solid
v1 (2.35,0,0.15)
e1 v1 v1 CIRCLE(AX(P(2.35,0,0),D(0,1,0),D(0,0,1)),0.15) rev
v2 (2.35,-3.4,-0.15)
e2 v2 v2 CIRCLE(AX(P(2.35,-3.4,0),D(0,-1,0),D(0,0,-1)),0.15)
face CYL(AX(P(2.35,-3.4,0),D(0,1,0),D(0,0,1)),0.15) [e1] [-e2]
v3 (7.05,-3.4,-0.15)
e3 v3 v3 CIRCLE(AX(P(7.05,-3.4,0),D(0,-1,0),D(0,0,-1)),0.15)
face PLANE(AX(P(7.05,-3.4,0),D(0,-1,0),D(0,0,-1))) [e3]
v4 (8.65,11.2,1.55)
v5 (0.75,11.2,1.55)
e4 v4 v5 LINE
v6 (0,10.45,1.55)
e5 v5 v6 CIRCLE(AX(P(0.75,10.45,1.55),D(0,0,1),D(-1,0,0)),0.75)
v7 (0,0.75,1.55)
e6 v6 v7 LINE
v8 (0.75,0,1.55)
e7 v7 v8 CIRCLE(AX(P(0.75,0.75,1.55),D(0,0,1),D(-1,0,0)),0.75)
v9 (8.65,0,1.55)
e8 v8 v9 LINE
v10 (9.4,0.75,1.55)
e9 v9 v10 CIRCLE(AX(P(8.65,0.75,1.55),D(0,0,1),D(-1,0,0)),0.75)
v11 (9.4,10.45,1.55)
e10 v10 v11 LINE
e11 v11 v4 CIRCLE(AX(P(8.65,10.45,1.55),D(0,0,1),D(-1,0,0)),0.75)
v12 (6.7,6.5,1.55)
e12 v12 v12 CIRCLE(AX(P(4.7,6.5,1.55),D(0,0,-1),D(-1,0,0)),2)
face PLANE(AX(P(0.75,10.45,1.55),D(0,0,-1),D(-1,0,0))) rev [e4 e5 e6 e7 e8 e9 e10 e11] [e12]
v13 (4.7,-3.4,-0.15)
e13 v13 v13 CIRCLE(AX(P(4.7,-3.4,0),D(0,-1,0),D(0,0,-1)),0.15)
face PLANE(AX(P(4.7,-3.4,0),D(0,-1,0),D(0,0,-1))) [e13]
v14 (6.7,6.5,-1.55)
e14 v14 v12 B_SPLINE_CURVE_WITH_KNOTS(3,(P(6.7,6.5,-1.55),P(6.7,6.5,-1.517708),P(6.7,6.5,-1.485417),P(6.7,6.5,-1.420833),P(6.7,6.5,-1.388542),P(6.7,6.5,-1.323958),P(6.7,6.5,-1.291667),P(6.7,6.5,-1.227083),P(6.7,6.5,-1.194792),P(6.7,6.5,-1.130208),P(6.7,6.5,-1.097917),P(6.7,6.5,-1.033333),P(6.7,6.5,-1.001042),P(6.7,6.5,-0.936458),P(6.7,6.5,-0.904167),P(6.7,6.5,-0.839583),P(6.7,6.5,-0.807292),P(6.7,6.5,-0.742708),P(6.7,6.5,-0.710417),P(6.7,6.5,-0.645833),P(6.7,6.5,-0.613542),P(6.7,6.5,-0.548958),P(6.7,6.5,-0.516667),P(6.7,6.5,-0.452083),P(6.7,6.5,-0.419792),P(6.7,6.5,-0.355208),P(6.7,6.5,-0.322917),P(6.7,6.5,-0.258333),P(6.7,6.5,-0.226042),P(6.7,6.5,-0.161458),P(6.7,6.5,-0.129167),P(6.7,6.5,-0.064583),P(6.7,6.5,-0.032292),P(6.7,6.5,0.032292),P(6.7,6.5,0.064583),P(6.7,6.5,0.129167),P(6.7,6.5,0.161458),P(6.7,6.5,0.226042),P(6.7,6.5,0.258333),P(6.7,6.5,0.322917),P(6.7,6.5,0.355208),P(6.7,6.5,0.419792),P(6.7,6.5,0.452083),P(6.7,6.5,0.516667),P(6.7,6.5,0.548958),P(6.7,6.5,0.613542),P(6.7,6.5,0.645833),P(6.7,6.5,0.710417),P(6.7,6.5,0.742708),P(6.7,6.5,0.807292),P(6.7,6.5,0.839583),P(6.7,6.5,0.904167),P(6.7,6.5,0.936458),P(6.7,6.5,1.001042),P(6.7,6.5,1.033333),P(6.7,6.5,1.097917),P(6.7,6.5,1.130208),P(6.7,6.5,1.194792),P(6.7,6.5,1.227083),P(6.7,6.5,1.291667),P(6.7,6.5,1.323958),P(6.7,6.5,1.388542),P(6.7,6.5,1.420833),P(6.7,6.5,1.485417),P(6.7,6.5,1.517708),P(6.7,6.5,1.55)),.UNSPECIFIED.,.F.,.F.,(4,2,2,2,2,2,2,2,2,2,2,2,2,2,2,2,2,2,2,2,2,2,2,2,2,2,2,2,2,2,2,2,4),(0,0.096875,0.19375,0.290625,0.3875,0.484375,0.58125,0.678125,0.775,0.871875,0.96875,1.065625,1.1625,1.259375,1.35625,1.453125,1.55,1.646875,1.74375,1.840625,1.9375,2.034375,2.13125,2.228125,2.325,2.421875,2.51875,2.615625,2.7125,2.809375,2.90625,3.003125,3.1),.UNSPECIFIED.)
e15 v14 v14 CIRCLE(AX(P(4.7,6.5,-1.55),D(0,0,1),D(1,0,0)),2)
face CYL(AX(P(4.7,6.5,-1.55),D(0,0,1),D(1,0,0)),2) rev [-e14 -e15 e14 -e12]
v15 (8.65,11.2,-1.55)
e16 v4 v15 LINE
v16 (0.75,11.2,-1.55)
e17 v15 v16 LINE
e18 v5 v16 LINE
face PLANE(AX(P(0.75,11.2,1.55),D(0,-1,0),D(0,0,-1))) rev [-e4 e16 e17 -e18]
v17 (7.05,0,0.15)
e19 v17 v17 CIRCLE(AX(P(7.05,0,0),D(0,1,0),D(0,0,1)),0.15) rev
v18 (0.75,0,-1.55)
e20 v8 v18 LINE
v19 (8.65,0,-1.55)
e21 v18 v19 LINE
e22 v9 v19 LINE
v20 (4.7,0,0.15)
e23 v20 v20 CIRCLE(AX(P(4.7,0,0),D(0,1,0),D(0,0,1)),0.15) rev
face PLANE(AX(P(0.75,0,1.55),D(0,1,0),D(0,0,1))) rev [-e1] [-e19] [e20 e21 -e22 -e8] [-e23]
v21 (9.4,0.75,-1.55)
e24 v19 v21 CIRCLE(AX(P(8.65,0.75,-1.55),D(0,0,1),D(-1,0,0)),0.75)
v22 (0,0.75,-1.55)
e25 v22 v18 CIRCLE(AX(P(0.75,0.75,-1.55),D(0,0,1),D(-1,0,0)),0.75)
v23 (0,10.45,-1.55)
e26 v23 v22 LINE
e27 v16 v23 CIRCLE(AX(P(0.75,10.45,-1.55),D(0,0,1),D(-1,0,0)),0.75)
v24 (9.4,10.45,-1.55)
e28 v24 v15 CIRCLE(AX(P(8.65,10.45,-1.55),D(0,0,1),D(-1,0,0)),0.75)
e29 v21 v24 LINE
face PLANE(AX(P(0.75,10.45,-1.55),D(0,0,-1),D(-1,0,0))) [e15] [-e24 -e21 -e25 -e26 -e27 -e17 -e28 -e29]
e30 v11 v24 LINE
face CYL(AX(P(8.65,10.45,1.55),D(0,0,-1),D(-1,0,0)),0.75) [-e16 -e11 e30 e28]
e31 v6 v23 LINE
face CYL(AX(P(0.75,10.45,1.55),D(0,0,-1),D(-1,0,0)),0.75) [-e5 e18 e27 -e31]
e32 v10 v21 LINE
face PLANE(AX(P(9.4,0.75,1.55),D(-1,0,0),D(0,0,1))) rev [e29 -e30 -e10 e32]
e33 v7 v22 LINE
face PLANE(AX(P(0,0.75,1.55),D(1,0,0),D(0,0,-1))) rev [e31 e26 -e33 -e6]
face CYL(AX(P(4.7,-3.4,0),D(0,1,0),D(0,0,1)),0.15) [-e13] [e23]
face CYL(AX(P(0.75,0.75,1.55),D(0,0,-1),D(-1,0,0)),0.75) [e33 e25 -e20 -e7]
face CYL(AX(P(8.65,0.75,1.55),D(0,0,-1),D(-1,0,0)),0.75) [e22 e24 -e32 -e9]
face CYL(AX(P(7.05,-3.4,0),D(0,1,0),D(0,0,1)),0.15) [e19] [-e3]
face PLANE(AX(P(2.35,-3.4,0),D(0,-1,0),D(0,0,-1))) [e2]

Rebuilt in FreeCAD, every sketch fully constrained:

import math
import FreeCAD as App
import Part
import Sketcher

doc = App.newDocument("Part")
body = doc.addObject("PartDesign::Body", "Body")

# Sketch on XY plane
sketch1 = body.newObject("Sketcher::SketchObject", "Sketch")
sketch1.AttachmentSupport = (doc.getObject("XY_Plane"), [""])
sketch1.MapMode = "FlatFace"
sketch1.addGeometry(Part.LineSegment(App.Vector(0.8, 0, 0), App.Vector(8.7, 0, 0)), False)
sketch1.addGeometry(Part.ArcOfCircle(Part.Circle(App.Vector(8.7, 0.8, 0), App.Vector(0, 0, 1), 0.8), math.radians(-90), math.radians(0)), False)
sketch1.addGeometry(Part.LineSegment(App.Vector(9.4, 0.8, 0), App.Vector(9.4, 10.4, 0)), False)
sketch1.addGeometry(Part.ArcOfCircle(Part.Circle(App.Vector(8.7, 10.4, 0), App.Vector(0, 0, 1), 0.8), math.radians(0), math.radians(90)), False)
sketch1.addGeometry(Part.LineSegment(App.Vector(8.7, 11.2, 0), App.Vector(0.8, 11.2, 0)), False)
sketch1.addGeometry(Part.ArcOfCircle(Part.Circle(App.Vector(0.8, 10.4, 0), App.Vector(0, 0, 1), 0.8), math.radians(90), math.radians(180)), False)
sketch1.addGeometry(Part.LineSegment(App.Vector(0, 10.4, 0), App.Vector(0, 0.8, 0)), False)
sketch1.addGeometry(Part.ArcOfCircle(Part.Circle(App.Vector(0.8, 0.8, 0), App.Vector(0, 0, 1), 0.8), math.radians(180), math.radians(270)), False)
sketch1.addConstraint(Sketcher.Constraint("Tangent", 0, 2, 1, 1))
sketch1.addConstraint(Sketcher.Constraint("Tangent", 1, 2, 2, 1))
sketch1.addConstraint(Sketcher.Constraint("Tangent", 2, 2, 3, 1))
sketch1.addConstraint(Sketcher.Constraint("Tangent", 3, 2, 4, 1))
sketch1.addConstraint(Sketcher.Constraint("Tangent", 4, 2, 5, 1))
sketch1.addConstraint(Sketcher.Constraint("Tangent", 5, 2, 6, 1))
sketch1.addConstraint(Sketcher.Constraint("Tangent", 6, 2, 7, 1))
sketch1.addConstraint(Sketcher.Constraint("Tangent", 7, 2, 0, 1))
sketch1.addConstraint(Sketcher.Constraint("Horizontal", 0))
sketch1.addConstraint(Sketcher.Constraint("Vertical", 2))
sketch1.addConstraint(Sketcher.Constraint("Horizontal", 4))
sketch1.addConstraint(Sketcher.Constraint("Vertical", 6))
sketch1.addConstraint(Sketcher.Constraint("Equal", 1, 3))
sketch1.addConstraint(Sketcher.Constraint("Equal", 3, 5))
sketch1.addConstraint(Sketcher.Constraint("Equal", 5, 7))
sketch1.addConstraint(Sketcher.Constraint("PointOnObject", 0, 2, -1))
sketch1.addConstraint(Sketcher.Constraint("PointOnObject", 5, 2, -2))
sketch1.addConstraint(Sketcher.Constraint("Radius", 1, 0.75))
sketch1.addConstraint(Sketcher.Constraint("DistanceX", 0, 1, 0, 2, 7.9))
sketch1.addConstraint(Sketcher.Constraint("DistanceY", 2, 1, 2, 2, 9.7))
pad1 = body.newObject("PartDesign::Pad", "Pad")
pad1.Profile = sketch1
pad1.Length = 3.1
pad1.Midplane = True

# Sketch on XY plane
sketch2 = body.newObject("Sketcher::SketchObject", "Sketch001")
sketch2.AttachmentSupport = (doc.getObject("XY_Plane"), [""])
sketch2.MapMode = "FlatFace"
sketch2.AttachmentOffset = App.Placement(App.Vector(0, 0, 1.55), App.Rotation())
sketch2.addGeometry(Part.Circle(App.Vector(4.7, 6.5, 0), App.Vector(0, 0, 1), 2), False)
sketch2.addConstraint(Sketcher.Constraint("Diameter", 0, 4.0))
sketch2.addConstraint(Sketcher.Constraint("DistanceX", -1, 1, 0, 3, 4.7))
sketch2.addConstraint(Sketcher.Constraint("DistanceY", -1, 1, 0, 3, 6.5))
pocket1 = body.newObject("PartDesign::Pocket", "Pocket")
pocket1.Profile = sketch2
pocket1.Type = "ThroughAll"
pocket1.Midplane = True

# Sketch on XZ plane
sketch3 = body.newObject("Sketcher::SketchObject", "Sketch002")
sketch3.AttachmentSupport = (doc.getObject("XZ_Plane"), [""])
sketch3.MapMode = "FlatFace"
sketch3.addGeometry(Part.Circle(App.Vector(2.35, 0, 0), App.Vector(0, 0, 1), 0.15), False)
sketch3.addGeometry(Part.Circle(App.Vector(4.7, 0, 0), App.Vector(0, 0, 1), 0.15), False)
sketch3.addGeometry(Part.Circle(App.Vector(7.05, 0, 0), App.Vector(0, 0, 1), 0.15), False)
sketch3.addConstraint(Sketcher.Constraint("Equal", 0, 1))
sketch3.addConstraint(Sketcher.Constraint("Equal", 1, 2))
sketch3.addConstraint(Sketcher.Constraint("PointOnObject", 0, 3, -1))
sketch3.addConstraint(Sketcher.Constraint("PointOnObject", 1, 3, -1))
sketch3.addConstraint(Sketcher.Constraint("PointOnObject", 2, 3, -1))
sketch3.addConstraint(Sketcher.Constraint("Diameter", 0, 0.3))
sketch3.addConstraint(Sketcher.Constraint("DistanceX", -1, 1, 1, 3, 4.7))
sketch3.addConstraint(Sketcher.Constraint("DistanceX", 0, 3, 2, 3, 4.7))
sketch3.addConstraint(Sketcher.Constraint("DistanceX", -1, 1, 0, 3, 2.35))
pad2 = body.newObject("PartDesign::Pad", "Pad001")
pad2.Profile = sketch3
pad2.Length = 3.4

doc.recompute()
